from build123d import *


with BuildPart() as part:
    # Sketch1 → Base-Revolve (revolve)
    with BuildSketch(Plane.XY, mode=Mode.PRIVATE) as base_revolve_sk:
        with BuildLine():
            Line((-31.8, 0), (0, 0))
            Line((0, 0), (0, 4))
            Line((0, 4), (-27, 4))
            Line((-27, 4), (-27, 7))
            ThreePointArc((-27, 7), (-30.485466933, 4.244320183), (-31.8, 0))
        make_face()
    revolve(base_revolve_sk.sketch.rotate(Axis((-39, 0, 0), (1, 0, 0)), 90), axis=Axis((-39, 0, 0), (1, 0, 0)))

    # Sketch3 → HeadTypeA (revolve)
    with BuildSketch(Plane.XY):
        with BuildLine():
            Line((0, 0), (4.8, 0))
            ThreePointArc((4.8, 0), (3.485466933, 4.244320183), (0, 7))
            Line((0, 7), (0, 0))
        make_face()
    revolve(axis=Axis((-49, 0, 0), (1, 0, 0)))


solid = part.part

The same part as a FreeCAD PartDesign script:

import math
import FreeCAD as App
import Part
import Sketcher

V = App.Vector

doc = App.newDocument("Part")
body = doc.addObject("PartDesign::Body", "Body")

sketch1 = body.newObject("Sketcher::SketchObject", "Sketch")
sketch1.AttachmentSupport = (doc.getObject("XY_Plane"), [""])
sketch1.MapMode = "FlatFace"
sketch1.addGeometry([
    Part.LineSegment(V(-31.8, 0, 0), V(0, 0, 0)),
    Part.LineSegment(V(0, 0, 0), V(0, 4, 0)),
    Part.LineSegment(V(0, 4, 0), V(-27, 4, 0)),
    Part.LineSegment(V(-27, 4, 0), V(-27, 7, 0)),
    Part.ArcOfCircle(Part.Circle(V(-24.3, 0, 0), V(0, 0, 1), 7.5), math.radians(111), math.radians(180)),
], False)
sketch1.addConstraint([
    Sketcher.Constraint("Coincident", 0, 2, 1, 1),
    Sketcher.Constraint("Coincident", 1, 2, 2, 1),
    Sketcher.Constraint("Coincident", 2, 2, 3, 1),
    Sketcher.Constraint("Coincident", 3, 2, 4, 1),
    Sketcher.Constraint("Coincident", 4, 2, 0, 1),
    Sketcher.Constraint("Horizontal", 0),
    Sketcher.Constraint("Vertical", 1),
    Sketcher.Constraint("Horizontal", 2),
    Sketcher.Constraint("Vertical", 3),
    Sketcher.Constraint("Coincident", 0, 2, -1, 1),
    Sketcher.Constraint("Radius", 4, 7.5),
    Sketcher.Constraint("DistanceX", 2, 2, 2, 1, 27.0),
    Sketcher.Constraint("DistanceY", 1, 1, 1, 2, 4.0),
    Sketcher.Constraint("DistanceY", 3, 1, 3, 2, 3.0),
    Sketcher.Constraint("DistanceX", 0, 1, 0, 2, 31.8),
])
revolution = body.newObject("PartDesign::Revolution", "Revolution")
revolution.Profile = sketch1
revolution.ReferenceAxis = (sketch1, ["H_Axis"])
revolution.Angle = 360

sketch2 = body.newObject("Sketcher::SketchObject", "Sketch001")
sketch2.AttachmentSupport = (doc.getObject("XY_Plane"), [""])
sketch2.MapMode = "FlatFace"
sketch2.addGeometry([
    Part.LineSegment(V(0, 0, 0), V(4.8, 0, 0)),
    Part.ArcOfCircle(Part.Circle(V(-2.7, 0, 0), V(0, 0, 1), 7.5), math.radians(0), math.radians(69)),
    Part.LineSegment(V(0, 7, 0), V(0, 0, 0)),
], False)
sketch2.addConstraint([
    Sketcher.Constraint("Coincident", 0, 2, 1, 1),
    Sketcher.Constraint("Coincident", 1, 2, 2, 1),
    Sketcher.Constraint("Coincident", 2, 2, 0, 1),
    Sketcher.Constraint("Horizontal", 0),
    Sketcher.Constraint("Vertical", 2),
    Sketcher.Constraint("Coincident", 2, 2, -1, 1),
    Sketcher.Constraint("Radius", 1, 7.5),
    Sketcher.Constraint("DistanceY", 2, 2, 2, 1, 7.0),
    Sketcher.Constraint("DistanceX", 0, 1, 0, 2, 4.8),
])
revolution2 = body.newObject("PartDesign::Revolution", "Revolution001")
revolution2.Profile = sketch2
revolution2.ReferenceAxis = (sketch2, ["H_Axis"])
revolution2.Angle = 360

doc.recompute()
